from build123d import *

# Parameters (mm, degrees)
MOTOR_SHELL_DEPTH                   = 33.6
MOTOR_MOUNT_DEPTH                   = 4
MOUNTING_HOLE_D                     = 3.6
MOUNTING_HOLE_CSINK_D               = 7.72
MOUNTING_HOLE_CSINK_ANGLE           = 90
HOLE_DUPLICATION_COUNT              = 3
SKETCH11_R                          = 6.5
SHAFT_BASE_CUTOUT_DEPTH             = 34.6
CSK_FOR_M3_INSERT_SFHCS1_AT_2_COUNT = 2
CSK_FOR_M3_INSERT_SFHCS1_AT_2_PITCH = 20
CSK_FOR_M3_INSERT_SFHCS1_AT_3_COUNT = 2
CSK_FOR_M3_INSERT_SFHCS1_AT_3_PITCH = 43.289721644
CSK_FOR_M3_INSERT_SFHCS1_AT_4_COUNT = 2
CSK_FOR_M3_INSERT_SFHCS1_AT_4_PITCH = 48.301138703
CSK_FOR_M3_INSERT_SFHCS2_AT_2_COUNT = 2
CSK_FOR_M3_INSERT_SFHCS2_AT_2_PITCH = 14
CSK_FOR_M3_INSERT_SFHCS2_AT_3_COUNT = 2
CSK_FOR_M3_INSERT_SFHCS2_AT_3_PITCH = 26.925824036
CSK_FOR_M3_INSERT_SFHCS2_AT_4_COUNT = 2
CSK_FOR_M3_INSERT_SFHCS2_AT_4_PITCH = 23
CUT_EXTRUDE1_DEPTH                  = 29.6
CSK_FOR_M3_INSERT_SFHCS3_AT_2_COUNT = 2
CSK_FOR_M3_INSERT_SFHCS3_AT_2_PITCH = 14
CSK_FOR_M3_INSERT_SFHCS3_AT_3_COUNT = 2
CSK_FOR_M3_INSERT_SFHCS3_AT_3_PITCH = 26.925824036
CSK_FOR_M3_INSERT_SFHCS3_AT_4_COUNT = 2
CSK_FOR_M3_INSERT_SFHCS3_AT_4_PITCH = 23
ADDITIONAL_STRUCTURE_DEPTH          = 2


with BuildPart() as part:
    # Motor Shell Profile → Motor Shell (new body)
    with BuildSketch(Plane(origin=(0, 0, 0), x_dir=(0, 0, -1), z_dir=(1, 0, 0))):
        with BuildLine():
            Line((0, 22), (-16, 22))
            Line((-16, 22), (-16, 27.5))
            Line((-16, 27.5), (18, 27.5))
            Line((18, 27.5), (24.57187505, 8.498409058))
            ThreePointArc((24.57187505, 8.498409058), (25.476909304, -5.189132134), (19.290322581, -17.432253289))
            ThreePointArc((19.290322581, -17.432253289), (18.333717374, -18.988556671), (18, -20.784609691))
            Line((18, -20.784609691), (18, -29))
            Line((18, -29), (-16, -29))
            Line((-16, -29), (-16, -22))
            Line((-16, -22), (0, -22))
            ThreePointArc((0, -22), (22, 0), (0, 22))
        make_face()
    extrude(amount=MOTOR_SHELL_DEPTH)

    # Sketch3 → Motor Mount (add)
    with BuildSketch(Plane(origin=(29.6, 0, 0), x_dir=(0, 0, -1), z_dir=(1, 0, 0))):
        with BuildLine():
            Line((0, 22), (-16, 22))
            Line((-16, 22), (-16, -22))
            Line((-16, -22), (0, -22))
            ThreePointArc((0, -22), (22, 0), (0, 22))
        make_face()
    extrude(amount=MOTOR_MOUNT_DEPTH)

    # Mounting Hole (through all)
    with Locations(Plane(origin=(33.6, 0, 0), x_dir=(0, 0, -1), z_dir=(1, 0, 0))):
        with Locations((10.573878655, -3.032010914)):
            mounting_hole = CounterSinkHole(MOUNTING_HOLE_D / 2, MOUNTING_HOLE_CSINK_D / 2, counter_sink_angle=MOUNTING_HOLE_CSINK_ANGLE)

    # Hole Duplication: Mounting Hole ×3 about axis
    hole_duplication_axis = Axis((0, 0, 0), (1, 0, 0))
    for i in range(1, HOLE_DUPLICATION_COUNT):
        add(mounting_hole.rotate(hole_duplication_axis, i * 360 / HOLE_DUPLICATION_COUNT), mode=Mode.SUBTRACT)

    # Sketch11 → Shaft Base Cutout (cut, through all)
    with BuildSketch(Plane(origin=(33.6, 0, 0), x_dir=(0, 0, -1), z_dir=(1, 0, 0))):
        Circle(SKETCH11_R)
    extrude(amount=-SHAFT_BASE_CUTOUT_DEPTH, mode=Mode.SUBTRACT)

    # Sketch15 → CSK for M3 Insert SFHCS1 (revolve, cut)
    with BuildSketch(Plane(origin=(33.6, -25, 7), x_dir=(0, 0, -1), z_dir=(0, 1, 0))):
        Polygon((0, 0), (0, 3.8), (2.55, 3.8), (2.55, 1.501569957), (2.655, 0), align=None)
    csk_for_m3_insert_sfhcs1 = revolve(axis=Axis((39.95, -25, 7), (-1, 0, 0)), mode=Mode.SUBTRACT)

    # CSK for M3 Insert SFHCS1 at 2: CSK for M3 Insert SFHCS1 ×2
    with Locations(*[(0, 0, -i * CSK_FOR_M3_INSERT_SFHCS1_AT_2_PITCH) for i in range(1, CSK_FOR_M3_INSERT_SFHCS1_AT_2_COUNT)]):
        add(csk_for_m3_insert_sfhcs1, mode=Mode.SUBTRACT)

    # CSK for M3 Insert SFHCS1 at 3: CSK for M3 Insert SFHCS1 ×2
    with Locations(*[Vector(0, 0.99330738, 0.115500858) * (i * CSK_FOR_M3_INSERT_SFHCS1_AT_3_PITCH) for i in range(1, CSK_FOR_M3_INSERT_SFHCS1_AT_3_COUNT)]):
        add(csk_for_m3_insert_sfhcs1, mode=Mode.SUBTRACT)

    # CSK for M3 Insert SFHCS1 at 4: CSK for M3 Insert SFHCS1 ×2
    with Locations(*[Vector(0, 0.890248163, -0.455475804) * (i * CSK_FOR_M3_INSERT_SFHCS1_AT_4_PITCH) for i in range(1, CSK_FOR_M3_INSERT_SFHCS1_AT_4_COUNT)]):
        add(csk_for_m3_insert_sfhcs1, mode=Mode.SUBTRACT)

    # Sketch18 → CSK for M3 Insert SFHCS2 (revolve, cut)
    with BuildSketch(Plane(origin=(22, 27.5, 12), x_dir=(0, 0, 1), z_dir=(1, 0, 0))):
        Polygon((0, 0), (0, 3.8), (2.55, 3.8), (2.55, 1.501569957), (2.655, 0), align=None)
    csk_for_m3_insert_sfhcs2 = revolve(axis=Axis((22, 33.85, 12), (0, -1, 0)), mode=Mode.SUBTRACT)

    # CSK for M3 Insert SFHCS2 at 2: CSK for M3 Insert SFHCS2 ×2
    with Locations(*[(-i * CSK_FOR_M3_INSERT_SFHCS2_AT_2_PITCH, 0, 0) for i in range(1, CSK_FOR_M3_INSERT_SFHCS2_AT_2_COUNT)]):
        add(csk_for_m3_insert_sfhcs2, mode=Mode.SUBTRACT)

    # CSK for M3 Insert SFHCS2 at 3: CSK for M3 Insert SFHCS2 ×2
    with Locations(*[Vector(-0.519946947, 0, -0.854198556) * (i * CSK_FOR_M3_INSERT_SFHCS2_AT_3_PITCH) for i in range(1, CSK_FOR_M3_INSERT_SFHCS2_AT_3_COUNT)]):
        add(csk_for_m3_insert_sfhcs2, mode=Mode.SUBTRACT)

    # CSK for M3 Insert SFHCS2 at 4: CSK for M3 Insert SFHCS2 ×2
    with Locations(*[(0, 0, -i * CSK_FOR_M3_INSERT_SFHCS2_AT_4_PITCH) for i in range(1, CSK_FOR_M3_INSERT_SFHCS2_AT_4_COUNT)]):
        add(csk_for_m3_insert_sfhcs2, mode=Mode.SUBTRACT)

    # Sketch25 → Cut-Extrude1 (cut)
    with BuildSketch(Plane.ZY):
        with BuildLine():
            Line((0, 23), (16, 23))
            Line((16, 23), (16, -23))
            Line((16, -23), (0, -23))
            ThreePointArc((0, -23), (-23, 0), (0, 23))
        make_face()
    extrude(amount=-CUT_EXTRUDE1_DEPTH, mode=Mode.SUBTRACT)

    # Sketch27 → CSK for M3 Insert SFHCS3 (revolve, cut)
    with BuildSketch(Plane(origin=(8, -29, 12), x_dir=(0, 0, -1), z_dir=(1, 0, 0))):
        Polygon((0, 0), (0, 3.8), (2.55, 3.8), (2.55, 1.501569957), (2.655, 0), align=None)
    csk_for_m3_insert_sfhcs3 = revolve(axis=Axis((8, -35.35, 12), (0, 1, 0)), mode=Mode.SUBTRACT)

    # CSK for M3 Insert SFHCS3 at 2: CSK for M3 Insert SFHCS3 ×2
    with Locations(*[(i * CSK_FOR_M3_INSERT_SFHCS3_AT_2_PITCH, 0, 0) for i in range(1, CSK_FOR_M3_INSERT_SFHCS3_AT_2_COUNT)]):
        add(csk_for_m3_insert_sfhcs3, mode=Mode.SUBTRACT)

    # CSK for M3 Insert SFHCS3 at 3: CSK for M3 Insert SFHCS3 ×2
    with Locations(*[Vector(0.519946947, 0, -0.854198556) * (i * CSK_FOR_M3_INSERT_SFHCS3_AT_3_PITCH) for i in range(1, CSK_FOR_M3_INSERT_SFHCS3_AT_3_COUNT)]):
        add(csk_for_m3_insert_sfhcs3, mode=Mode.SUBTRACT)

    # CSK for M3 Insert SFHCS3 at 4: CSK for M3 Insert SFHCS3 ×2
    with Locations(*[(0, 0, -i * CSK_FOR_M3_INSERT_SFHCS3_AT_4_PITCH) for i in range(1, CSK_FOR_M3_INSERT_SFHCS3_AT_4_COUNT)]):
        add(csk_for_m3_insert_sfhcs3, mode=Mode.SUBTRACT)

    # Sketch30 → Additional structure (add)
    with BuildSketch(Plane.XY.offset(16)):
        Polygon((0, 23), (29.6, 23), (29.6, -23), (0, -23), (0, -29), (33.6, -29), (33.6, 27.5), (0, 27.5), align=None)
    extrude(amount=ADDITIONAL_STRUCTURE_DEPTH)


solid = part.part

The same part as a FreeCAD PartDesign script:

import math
import FreeCAD as App
import Part
import Sketcher
from FreeCAD import Vector
Q = App.Units.Quantity


def add_polygon(sketch, points):
    """Adds a closed chain of lines whose ends are joined by coincident constraints."""
    first, n = sketch.GeometryCount, len(points)
    for a, b in zip(points, points[1:] + points[:1]):
        sketch.addGeometry(Part.LineSegment(App.Vector(*a, 0), App.Vector(*b, 0)), False)
    for i in range(n):
        sketch.addConstraint(Sketcher.Constraint("Coincident", first + i, 2, first + (i + 1) % n, 1))

doc = App.newDocument("Part")
body = doc.addObject("PartDesign::Body", "Body")

sketch1 = doc.addObject("Sketcher::SketchObject", "Sketch")
body.addObject(sketch1)
sketch1.AttachmentSupport = (doc.YZ_Plane, [""])
sketch1.MapMode = "FlatFace"
sketch1.addGeometry([
    Part.LineSegment(Vector(22, 16, 0), Vector(22, 0, 0)),
    Part.ArcOfCircle(Part.Circle(Vector(0, 0, 0), Vector(0, 0, 1), 22), math.radians(180), math.radians(360)),
    Part.LineSegment(Vector(-22, 0, 0), Vector(-22, 16, 0)),
    Part.LineSegment(Vector(-22, 16, 0), Vector(-29, 16, 0)),
    Part.LineSegment(Vector(-29, 16, 0), Vector(-29, -18, 0)),
    Part.LineSegment(Vector(-29, -18, 0), Vector(-20.78461, -18, 0)),
    Part.ArcOfCircle(Part.Circle(Vector(-20.78461, -23, 0), Vector(0, 0, 1), 5), math.radians(47.896551), math.radians(90)),
    Part.ArcOfCircle(Part.Circle(Vector(0, 0, 0), Vector(0, 0, 1), 26), math.radians(-132.103449), math.radians(-70.921585)),
    Part.LineSegment(Vector(8.498409, -24.571875, 0), Vector(27.5, -18, 0)),
    Part.LineSegment(Vector(27.5, -18, 0), Vector(27.5, 16, 0)),
    Part.LineSegment(Vector(27.5, 16, 0), Vector(22, 16, 0)),
], False)
sketch1.addConstraint([
    Sketcher.Constraint("Tangent", 0, 2, 1, 2),
    Sketcher.Constraint("Tangent", 1, 1, 2, 1),
    Sketcher.Constraint("Coincident", 2, 2, 3, 1),
    Sketcher.Constraint("Coincident", 3, 2, 4, 1),
    Sketcher.Constraint("Coincident", 4, 2, 5, 1),
    Sketcher.Constraint("Tangent", 5, 2, 6, 2),
    Sketcher.Constraint("Tangent", 6, 1, 7, 1),
    Sketcher.Constraint("Tangent", 7, 2, 8, 1),
    Sketcher.Constraint("Coincident", 8, 2, 9, 1),
    Sketcher.Constraint("Coincident", 9, 2, 10, 1),
    Sketcher.Constraint("Coincident", 10, 2, 0, 1),
    Sketcher.Constraint("Vertical", 0),
    Sketcher.Constraint("Vertical", 2),
    Sketcher.Constraint("Horizontal", 3),
    Sketcher.Constraint("Vertical", 4),
    Sketcher.Constraint("Horizontal", 5),
    Sketcher.Constraint("Vertical", 9),
    Sketcher.Constraint("Horizontal", 10),
    Sketcher.Constraint("Coincident", 1, 3, -1, 1),
    Sketcher.Constraint("Coincident", 7, 3, -1, 1),
    Sketcher.Constraint("Horizontal", 5, 2, 8, 2),
    Sketcher.Constraint("Horizontal", 3, 2, 9, 2),
    Sketcher.Constraint("Radius", 1, 22.0),
    Sketcher.Constraint("Radius", 6, 5.0),
    Sketcher.Constraint("Radius", 7, 26.0),
    Sketcher.Constraint("DistanceX", 3, 2, 3, 1, 7.0),
    Sketcher.Constraint("DistanceY", 0, 2, 0, 1, 16.0),
    Sketcher.Constraint("DistanceY", 4, 2, 4, 1, 34.0),
    Sketcher.Constraint("DistanceX", 10, 2, 10, 1, 5.5),
])
pad1 = doc.addObject("PartDesign::Pad", "Pad")
body.addObject(pad1)
pad1.Profile = sketch1
pad1.Length = 33.6

sketch2 = doc.addObject("Sketcher::SketchObject", "Sketch001")
body.addObject(sketch2)
sketch2.AttachmentSupport = (doc.YZ_Plane, [""])
sketch2.MapMode = "FlatFace"
sketch2.AttachmentOffset = App.Placement(Vector(0, 0, 29.6), App.Rotation())
sketch2.addGeometry([
    Part.LineSegment(Vector(22, 0, 0), Vector(22, 16, 0)),
    Part.LineSegment(Vector(22, 16, 0), Vector(-22, 16, 0)),
    Part.LineSegment(Vector(-22, 16, 0), Vector(-22, 0, 0)),
    Part.ArcOfCircle(Part.Circle(Vector(0, 0, 0), Vector(0, 0, 1), 22), math.radians(180), math.radians(360)),
], False)
sketch2.addConstraint([
    Sketcher.Constraint("Coincident", 0, 2, 1, 1),
    Sketcher.Constraint("Coincident", 1, 2, 2, 1),
    Sketcher.Constraint("Tangent", 2, 2, 3, 1),
    Sketcher.Constraint("Tangent", 3, 2, 0, 1),
    Sketcher.Constraint("Vertical", 0),
    Sketcher.Constraint("Horizontal", 1),
    Sketcher.Constraint("Vertical", 2),
    Sketcher.Constraint("Coincident", 3, 3, -1, 1),
    Sketcher.Constraint("Radius", 3, 22.0),
    Sketcher.Constraint("DistanceY", 0, 1, 0, 2, 16.0),
])
pad2 = doc.addObject("PartDesign::Pad", "Pad001")
body.addObject(pad2)
pad2.Profile = sketch2
pad2.Length = 4

sketch3 = doc.addObject("Sketcher::SketchObject", "Sketch002")
body.addObject(sketch3)
sketch3.AttachmentSupport = (doc.YZ_Plane, [""])
sketch3.MapMode = "FlatFace"
sketch3.AttachmentOffset = App.Placement(Vector(0, 0, 33.6), App.Rotation())
sketch3.addGeometry(Part.Circle(Vector(-3.032011, -10.573879, 0), Vector(0, 0, 1), 1.8), False)
sketch3.addConstraint([
    Sketcher.Constraint("Diameter", 0, 3.6),
    Sketcher.Constraint("DistanceX", 0, 3, -1, 1, 3.032011),
    Sketcher.Constraint("DistanceY", 0, 3, -1, 1, 10.573879),
])
doc.recompute()
hole = doc.addObject("PartDesign::Hole", "Hole")
body.addObject(hole)
hole.Profile = sketch3
hole.ThreadType = "None"
hole.Diameter = 3.6
hole.DepthType = "ThroughAll"
hole.HoleCutType = "Countersink"
hole.HoleCutDiameter = 7.72
hole.HoleCutCountersinkAngle = 90
doc.recompute()

polarpattern = doc.addObject("PartDesign::PolarPattern", "PolarPattern")
body.addObject(polarpattern)
polarpattern.Originals = [hole]
polarpattern.Axis = (doc.X_Axis, [""])
polarpattern.Angle = 360
polarpattern.Occurrences = 3
body.Tip = polarpattern

sketch4 = doc.addObject("Sketcher::SketchObject", "Sketch003")
body.addObject(sketch4)
sketch4.AttachmentSupport = (doc.YZ_Plane, [""])
sketch4.MapMode = "FlatFace"
sketch4.AttachmentOffset = App.Placement(Vector(0, 0, 33.6), App.Rotation())
sketch4.addGeometry(Part.Circle(Vector(0, 0, 0), Vector(0, 0, 1), 6.5), False)
sketch4.addConstraint([
    Sketcher.Constraint("Coincident", 0, 3, -1, 1),
    Sketcher.Constraint("Diameter", 0, 13.0),
])
pocket1 = doc.addObject("PartDesign::Pocket", "Pocket")
body.addObject(pocket1)
pocket1.Profile = sketch4
pocket1.Type = "ThroughAll"

sketch5 = doc.addObject("Sketcher::SketchObject", "Sketch004")
body.addObject(sketch5)
sketch5.AttachmentSupport = (doc.XZ_Plane, [""])
sketch5.MapMode = "FlatFace"
sketch5.AttachmentOffset = App.Placement(Vector(0, 0, 25), App.Rotation())
add_polygon(sketch5, [(29.8, 7), (33.6, 7), (33.6, 4.345), (32.09843, 4.45), (29.8, 4.45)])
sketch5.addGeometry(Part.LineSegment(Vector(33.6, 7, 0), Vector(29.8, 7, 0)), True)
sketch5.addConstraint([
    Sketcher.Constraint("Horizontal", 0),
    Sketcher.Constraint("Vertical", 1),
    Sketcher.Constraint("Horizontal", 3),
    Sketcher.Constraint("Vertical", 4),
    Sketcher.Constraint("Horizontal", 5),
    Sketcher.Constraint("Coincident", 5, 1, 0, 2),
    Sketcher.Constraint("Vertical", 3, 2, 5, 2),
    Sketcher.Constraint("Angle", 2, Q("176 deg")),
    Sketcher.Constraint("DistanceX", 0, 1, 0, 2, 3.8),
    Sketcher.Constraint("DistanceY", -1, 1, 0, 2, 7.0),
    Sketcher.Constraint("DistanceY", 4, 1, 4, 2, 2.55),
    Sketcher.Constraint("DistanceX", -1, 1, 0, 2, 33.6),
    Sketcher.Constraint("DistanceY", 1, 2, 1, 1, 2.655),
])
groove = doc.addObject("PartDesign::Groove", "Groove")
body.addObject(groove)
groove.Profile = sketch5
groove.ReferenceAxis = (sketch5, ["Axis0"])
groove.Angle = 360
doc.recompute()

linearpattern = doc.addObject("PartDesign::LinearPattern", "LinearPattern")
body.addObject(linearpattern)
linearpattern.Originals = [groove]
linearpattern.Direction = (doc.Z_Axis, [""])
linearpattern.Mode = "offset"
linearpattern.Offset = 20
linearpattern.Occurrences = 2
linearpattern.Reversed = True
body.Tip = linearpattern
doc.recompute()

datumline = doc.addObject("PartDesign::Line", "DatumLine")
body.addObject(datumline)
datumline.Placement = App.Placement(Vector(0, 0, 0), App.Rotation(Vector(0, 0, 1), Vector(0, 0.99330738, 0.115500858)))
linearpattern2 = doc.addObject("PartDesign::LinearPattern", "LinearPattern001")
body.addObject(linearpattern2)
linearpattern2.Originals = [groove]
linearpattern2.Direction = (datumline, [""])
linearpattern2.Mode = "offset"
linearpattern2.Offset = 43.289722
linearpattern2.Occurrences = 2
body.Tip = linearpattern2
doc.recompute()

datumline2 = doc.addObject("PartDesign::Line", "DatumLine001")
body.addObject(datumline2)
datumline2.Placement = App.Placement(Vector(0, 0, 0), App.Rotation(Vector(0, 0, 1), Vector(0, 0.890248163, -0.455475804)))
linearpattern3 = doc.addObject("PartDesign::LinearPattern", "LinearPattern002")
body.addObject(linearpattern3)
linearpattern3.Originals = [groove]
linearpattern3.Direction = (datumline2, [""])
linearpattern3.Mode = "offset"
linearpattern3.Offset = 48.301139
linearpattern3.Occurrences = 2
body.Tip = linearpattern3

sketch6 = doc.addObject("Sketcher::SketchObject", "Sketch005")
body.addObject(sketch6)
sketch6.AttachmentSupport = (doc.YZ_Plane, [""])
sketch6.MapMode = "FlatFace"
sketch6.AttachmentOffset = App.Placement(Vector(0, 0, 22), App.Rotation())
add_polygon(sketch6, [(23.7, 12), (27.5, 12), (27.5, 14.655), (25.99843, 14.55), (23.7, 14.55)])
sketch6.addGeometry(Part.LineSegment(Vector(27.5, 12, 0), Vector(23.7, 12, 0)), True)
sketch6.addConstraint([
    Sketcher.Constraint("Horizontal", 0),
    Sketcher.Constraint("Vertical", 1),
    Sketcher.Constraint("Horizontal", 3),
    Sketcher.Constraint("Vertical", 4),
    Sketcher.Constraint("Horizontal", 5),
    Sketcher.Constraint("Coincident", 5, 1, 0, 2),
    Sketcher.Constraint("Vertical", 3, 2, 5, 2),
    Sketcher.Constraint("Angle", 2, Q("-176 deg")),
    Sketcher.Constraint("DistanceX", 0, 1, 0, 2, 3.8),
    Sketcher.Constraint("DistanceY", -1, 1, 0, 2, 12.0),
    Sketcher.Constraint("DistanceY", 4, 2, 4, 1, 2.55),
    Sketcher.Constraint("DistanceX", -1, 1, 0, 2, 27.5),
    Sketcher.Constraint("DistanceY", 1, 1, 1, 2, 2.655),
])
groove2 = doc.addObject("PartDesign::Groove", "Groove001")
body.addObject(groove2)
groove2.Profile = sketch6
groove2.ReferenceAxis = (sketch6, ["Axis0"])
groove2.Angle = 360
doc.recompute()

linearpattern4 = doc.addObject("PartDesign::LinearPattern", "LinearPattern003")
body.addObject(linearpattern4)
linearpattern4.Originals = [groove2]
linearpattern4.Direction = (doc.X_Axis, [""])
linearpattern4.Mode = "offset"
linearpattern4.Offset = 14
linearpattern4.Occurrences = 2
linearpattern4.Reversed = True
body.Tip = linearpattern4
doc.recompute()

datumline3 = doc.addObject("PartDesign::Line", "DatumLine002")
body.addObject(datumline3)
datumline3.Placement = App.Placement(Vector(0, 0, 0), App.Rotation(Vector(0, 0, 1), Vector(-0.519946947, 0, -0.854198556)))
linearpattern5 = doc.addObject("PartDesign::LinearPattern", "LinearPattern004")
body.addObject(linearpattern5)
linearpattern5.Originals = [groove2]
linearpattern5.Direction = (datumline3, [""])
linearpattern5.Mode = "offset"
linearpattern5.Offset = 26.925824
linearpattern5.Occurrences = 2
body.Tip = linearpattern5
doc.recompute()

linearpattern6 = doc.addObject("PartDesign::LinearPattern", "LinearPattern005")
body.addObject(linearpattern6)
linearpattern6.Originals = [groove2]
linearpattern6.Direction = (doc.Z_Axis, [""])
linearpattern6.Mode = "offset"
linearpattern6.Offset = 23
linearpattern6.Occurrences = 2
linearpattern6.Reversed = True
body.Tip = linearpattern6

sketch7 = doc.addObject("Sketcher::SketchObject", "Sketch006")
body.addObject(sketch7)
sketch7.AttachmentSupport = (doc.YZ_Plane, [""])
sketch7.MapMode = "FlatFace"
sketch7.addGeometry([
    Part.LineSegment(Vector(23, 16, 0), Vector(23, 0, 0)),
    Part.ArcOfCircle(Part.Circle(Vector(0, 0, 0), Vector(0, 0, 1), 23), math.radians(180), math.radians(360)),
    Part.LineSegment(Vector(-23, 0, 0), Vector(-23, 16, 0)),
    Part.LineSegment(Vector(-23, 16, 0), Vector(23, 16, 0)),
], False)
sketch7.addConstraint([
    Sketcher.Constraint("Tangent", 0, 2, 1, 2),
    Sketcher.Constraint("Tangent", 1, 1, 2, 1),
    Sketcher.Constraint("Coincident", 2, 2, 3, 1),
    Sketcher.Constraint("Coincident", 3, 2, 0, 1),
    Sketcher.Constraint("Vertical", 0),
    Sketcher.Constraint("Vertical", 2),
    Sketcher.Constraint("Horizontal", 3),
    Sketcher.Constraint("Coincident", 1, 3, -1, 1),
    Sketcher.Constraint("Radius", 1, 23.0),
    Sketcher.Constraint("DistanceY", 0, 2, 0, 1, 16.0),
])
pocket2 = doc.addObject("PartDesign::Pocket", "Pocket001")
body.addObject(pocket2)
pocket2.Profile = sketch7
pocket2.Length = 29.6
pocket2.Reversed = True

sketch8 = doc.addObject("Sketcher::SketchObject", "Sketch007")
body.addObject(sketch8)
sketch8.AttachmentSupport = (doc.YZ_Plane, [""])
sketch8.MapMode = "FlatFace"
sketch8.AttachmentOffset = App.Placement(Vector(0, 0, 8), App.Rotation())
add_polygon(sketch8, [(-25.2, 12), (-29, 12), (-29, 9.345), (-27.49843, 9.45), (-25.2, 9.45)])
sketch8.addGeometry(Part.LineSegment(Vector(-29, 12, 0), Vector(-25.2, 12, 0)), True)
sketch8.addConstraint([
    Sketcher.Constraint("Horizontal", 0),
    Sketcher.Constraint("Vertical", 1),
    Sketcher.Constraint("Horizontal", 3),
    Sketcher.Constraint("Vertical", 4),
    Sketcher.Constraint("Horizontal", 5),
    Sketcher.Constraint("Coincident", 5, 1, 0, 2),
    Sketcher.Constraint("Vertical", 3, 2, 5, 2),
    Sketcher.Constraint("Angle", 2, Q("4 deg")),
    Sketcher.Constraint("DistanceX", 0, 2, 0, 1, 3.8),
    Sketcher.Constraint("DistanceX", 0, 2, -1, 1, 29.0),
    Sketcher.Constraint("DistanceY", -1, 1, 0, 2, 12.0),
    Sketcher.Constraint("DistanceY", 4, 1, 4, 2, 2.55),
    Sketcher.Constraint("DistanceY", 1, 2, 1, 1, 2.655),
])
groove3 = doc.addObject("PartDesign::Groove", "Groove002")
body.addObject(groove3)
groove3.Profile = sketch8
groove3.ReferenceAxis = (sketch8, ["Axis0"])
groove3.Angle = 360
doc.recompute()

linearpattern7 = doc.addObject("PartDesign::LinearPattern", "LinearPattern006")
body.addObject(linearpattern7)
linearpattern7.Originals = [groove3]
linearpattern7.Direction = (doc.X_Axis, [""])
linearpattern7.Mode = "offset"
linearpattern7.Offset = 14
linearpattern7.Occurrences = 2
body.Tip = linearpattern7
doc.recompute()

datumline4 = doc.addObject("PartDesign::Line", "DatumLine003")
body.addObject(datumline4)
datumline4.Placement = App.Placement(Vector(0, 0, 0), App.Rotation(Vector(0, 0, 1), Vector(0.519946947, 0, -0.854198556)))
linearpattern8 = doc.addObject("PartDesign::LinearPattern", "LinearPattern007")
body.addObject(linearpattern8)
linearpattern8.Originals = [groove3]
linearpattern8.Direction = (datumline4, [""])
linearpattern8.Mode = "offset"
linearpattern8.Offset = 26.925824
linearpattern8.Occurrences = 2
body.Tip = linearpattern8
doc.recompute()

linearpattern9 = doc.addObject("PartDesign::LinearPattern", "LinearPattern008")
body.addObject(linearpattern9)
linearpattern9.Originals = [groove3]
linearpattern9.Direction = (doc.Z_Axis, [""])
linearpattern9.Mode = "offset"
linearpattern9.Offset = 23
linearpattern9.Occurrences = 2
linearpattern9.Reversed = True
body.Tip = linearpattern9

sketch9 = doc.addObject("Sketcher::SketchObject", "Sketch008")
body.addObject(sketch9)
sketch9.AttachmentSupport = (doc.XY_Plane, [""])
sketch9.MapMode = "FlatFace"
sketch9.AttachmentOffset = App.Placement(Vector(0, 0, 16), App.Rotation())
add_polygon(sketch9, [(0, 23), (29.6, 23), (29.6, -23), (0, -23), (0, -29), (33.6, -29), (33.6, 27.5), (0, 27.5)])
sketch9.addConstraint([
    Sketcher.Constraint("Horizontal", 0),
    Sketcher.Constraint("Vertical", 1),
    Sketcher.Constraint("Horizontal", 2),
    Sketcher.Constraint("Vertical", 3),
    Sketcher.Constraint("Horizontal", 4),
    Sketcher.Constraint("Vertical", 5),
    Sketcher.Constraint("Horizontal", 6),
    Sketcher.Constraint("Vertical", 7),
    Sketcher.Constraint("Symmetric", 2, 2, 7, 2, -1, 1),
    Sketcher.Constraint("PointOnObject", 2, 2, -2),
    Sketcher.Constraint("DistanceY", 1, 2, 1, 1, 46.0),
    Sketcher.Constraint("DistanceY", 3, 2, 3, 1, 6.0),
    Sketcher.Constraint("DistanceX", 0, 1, 0, 2, 29.6),
    Sketcher.Constraint("DistanceX", 4, 1, 4, 2, 33.6),
    Sketcher.Constraint("DistanceY", 5, 1, 5, 2, 56.5),
])
pad3 = doc.addObject("PartDesign::Pad", "Pad002")
body.addObject(pad3)
pad3.Profile = sketch9
pad3.Length = 2

doc.recompute()
